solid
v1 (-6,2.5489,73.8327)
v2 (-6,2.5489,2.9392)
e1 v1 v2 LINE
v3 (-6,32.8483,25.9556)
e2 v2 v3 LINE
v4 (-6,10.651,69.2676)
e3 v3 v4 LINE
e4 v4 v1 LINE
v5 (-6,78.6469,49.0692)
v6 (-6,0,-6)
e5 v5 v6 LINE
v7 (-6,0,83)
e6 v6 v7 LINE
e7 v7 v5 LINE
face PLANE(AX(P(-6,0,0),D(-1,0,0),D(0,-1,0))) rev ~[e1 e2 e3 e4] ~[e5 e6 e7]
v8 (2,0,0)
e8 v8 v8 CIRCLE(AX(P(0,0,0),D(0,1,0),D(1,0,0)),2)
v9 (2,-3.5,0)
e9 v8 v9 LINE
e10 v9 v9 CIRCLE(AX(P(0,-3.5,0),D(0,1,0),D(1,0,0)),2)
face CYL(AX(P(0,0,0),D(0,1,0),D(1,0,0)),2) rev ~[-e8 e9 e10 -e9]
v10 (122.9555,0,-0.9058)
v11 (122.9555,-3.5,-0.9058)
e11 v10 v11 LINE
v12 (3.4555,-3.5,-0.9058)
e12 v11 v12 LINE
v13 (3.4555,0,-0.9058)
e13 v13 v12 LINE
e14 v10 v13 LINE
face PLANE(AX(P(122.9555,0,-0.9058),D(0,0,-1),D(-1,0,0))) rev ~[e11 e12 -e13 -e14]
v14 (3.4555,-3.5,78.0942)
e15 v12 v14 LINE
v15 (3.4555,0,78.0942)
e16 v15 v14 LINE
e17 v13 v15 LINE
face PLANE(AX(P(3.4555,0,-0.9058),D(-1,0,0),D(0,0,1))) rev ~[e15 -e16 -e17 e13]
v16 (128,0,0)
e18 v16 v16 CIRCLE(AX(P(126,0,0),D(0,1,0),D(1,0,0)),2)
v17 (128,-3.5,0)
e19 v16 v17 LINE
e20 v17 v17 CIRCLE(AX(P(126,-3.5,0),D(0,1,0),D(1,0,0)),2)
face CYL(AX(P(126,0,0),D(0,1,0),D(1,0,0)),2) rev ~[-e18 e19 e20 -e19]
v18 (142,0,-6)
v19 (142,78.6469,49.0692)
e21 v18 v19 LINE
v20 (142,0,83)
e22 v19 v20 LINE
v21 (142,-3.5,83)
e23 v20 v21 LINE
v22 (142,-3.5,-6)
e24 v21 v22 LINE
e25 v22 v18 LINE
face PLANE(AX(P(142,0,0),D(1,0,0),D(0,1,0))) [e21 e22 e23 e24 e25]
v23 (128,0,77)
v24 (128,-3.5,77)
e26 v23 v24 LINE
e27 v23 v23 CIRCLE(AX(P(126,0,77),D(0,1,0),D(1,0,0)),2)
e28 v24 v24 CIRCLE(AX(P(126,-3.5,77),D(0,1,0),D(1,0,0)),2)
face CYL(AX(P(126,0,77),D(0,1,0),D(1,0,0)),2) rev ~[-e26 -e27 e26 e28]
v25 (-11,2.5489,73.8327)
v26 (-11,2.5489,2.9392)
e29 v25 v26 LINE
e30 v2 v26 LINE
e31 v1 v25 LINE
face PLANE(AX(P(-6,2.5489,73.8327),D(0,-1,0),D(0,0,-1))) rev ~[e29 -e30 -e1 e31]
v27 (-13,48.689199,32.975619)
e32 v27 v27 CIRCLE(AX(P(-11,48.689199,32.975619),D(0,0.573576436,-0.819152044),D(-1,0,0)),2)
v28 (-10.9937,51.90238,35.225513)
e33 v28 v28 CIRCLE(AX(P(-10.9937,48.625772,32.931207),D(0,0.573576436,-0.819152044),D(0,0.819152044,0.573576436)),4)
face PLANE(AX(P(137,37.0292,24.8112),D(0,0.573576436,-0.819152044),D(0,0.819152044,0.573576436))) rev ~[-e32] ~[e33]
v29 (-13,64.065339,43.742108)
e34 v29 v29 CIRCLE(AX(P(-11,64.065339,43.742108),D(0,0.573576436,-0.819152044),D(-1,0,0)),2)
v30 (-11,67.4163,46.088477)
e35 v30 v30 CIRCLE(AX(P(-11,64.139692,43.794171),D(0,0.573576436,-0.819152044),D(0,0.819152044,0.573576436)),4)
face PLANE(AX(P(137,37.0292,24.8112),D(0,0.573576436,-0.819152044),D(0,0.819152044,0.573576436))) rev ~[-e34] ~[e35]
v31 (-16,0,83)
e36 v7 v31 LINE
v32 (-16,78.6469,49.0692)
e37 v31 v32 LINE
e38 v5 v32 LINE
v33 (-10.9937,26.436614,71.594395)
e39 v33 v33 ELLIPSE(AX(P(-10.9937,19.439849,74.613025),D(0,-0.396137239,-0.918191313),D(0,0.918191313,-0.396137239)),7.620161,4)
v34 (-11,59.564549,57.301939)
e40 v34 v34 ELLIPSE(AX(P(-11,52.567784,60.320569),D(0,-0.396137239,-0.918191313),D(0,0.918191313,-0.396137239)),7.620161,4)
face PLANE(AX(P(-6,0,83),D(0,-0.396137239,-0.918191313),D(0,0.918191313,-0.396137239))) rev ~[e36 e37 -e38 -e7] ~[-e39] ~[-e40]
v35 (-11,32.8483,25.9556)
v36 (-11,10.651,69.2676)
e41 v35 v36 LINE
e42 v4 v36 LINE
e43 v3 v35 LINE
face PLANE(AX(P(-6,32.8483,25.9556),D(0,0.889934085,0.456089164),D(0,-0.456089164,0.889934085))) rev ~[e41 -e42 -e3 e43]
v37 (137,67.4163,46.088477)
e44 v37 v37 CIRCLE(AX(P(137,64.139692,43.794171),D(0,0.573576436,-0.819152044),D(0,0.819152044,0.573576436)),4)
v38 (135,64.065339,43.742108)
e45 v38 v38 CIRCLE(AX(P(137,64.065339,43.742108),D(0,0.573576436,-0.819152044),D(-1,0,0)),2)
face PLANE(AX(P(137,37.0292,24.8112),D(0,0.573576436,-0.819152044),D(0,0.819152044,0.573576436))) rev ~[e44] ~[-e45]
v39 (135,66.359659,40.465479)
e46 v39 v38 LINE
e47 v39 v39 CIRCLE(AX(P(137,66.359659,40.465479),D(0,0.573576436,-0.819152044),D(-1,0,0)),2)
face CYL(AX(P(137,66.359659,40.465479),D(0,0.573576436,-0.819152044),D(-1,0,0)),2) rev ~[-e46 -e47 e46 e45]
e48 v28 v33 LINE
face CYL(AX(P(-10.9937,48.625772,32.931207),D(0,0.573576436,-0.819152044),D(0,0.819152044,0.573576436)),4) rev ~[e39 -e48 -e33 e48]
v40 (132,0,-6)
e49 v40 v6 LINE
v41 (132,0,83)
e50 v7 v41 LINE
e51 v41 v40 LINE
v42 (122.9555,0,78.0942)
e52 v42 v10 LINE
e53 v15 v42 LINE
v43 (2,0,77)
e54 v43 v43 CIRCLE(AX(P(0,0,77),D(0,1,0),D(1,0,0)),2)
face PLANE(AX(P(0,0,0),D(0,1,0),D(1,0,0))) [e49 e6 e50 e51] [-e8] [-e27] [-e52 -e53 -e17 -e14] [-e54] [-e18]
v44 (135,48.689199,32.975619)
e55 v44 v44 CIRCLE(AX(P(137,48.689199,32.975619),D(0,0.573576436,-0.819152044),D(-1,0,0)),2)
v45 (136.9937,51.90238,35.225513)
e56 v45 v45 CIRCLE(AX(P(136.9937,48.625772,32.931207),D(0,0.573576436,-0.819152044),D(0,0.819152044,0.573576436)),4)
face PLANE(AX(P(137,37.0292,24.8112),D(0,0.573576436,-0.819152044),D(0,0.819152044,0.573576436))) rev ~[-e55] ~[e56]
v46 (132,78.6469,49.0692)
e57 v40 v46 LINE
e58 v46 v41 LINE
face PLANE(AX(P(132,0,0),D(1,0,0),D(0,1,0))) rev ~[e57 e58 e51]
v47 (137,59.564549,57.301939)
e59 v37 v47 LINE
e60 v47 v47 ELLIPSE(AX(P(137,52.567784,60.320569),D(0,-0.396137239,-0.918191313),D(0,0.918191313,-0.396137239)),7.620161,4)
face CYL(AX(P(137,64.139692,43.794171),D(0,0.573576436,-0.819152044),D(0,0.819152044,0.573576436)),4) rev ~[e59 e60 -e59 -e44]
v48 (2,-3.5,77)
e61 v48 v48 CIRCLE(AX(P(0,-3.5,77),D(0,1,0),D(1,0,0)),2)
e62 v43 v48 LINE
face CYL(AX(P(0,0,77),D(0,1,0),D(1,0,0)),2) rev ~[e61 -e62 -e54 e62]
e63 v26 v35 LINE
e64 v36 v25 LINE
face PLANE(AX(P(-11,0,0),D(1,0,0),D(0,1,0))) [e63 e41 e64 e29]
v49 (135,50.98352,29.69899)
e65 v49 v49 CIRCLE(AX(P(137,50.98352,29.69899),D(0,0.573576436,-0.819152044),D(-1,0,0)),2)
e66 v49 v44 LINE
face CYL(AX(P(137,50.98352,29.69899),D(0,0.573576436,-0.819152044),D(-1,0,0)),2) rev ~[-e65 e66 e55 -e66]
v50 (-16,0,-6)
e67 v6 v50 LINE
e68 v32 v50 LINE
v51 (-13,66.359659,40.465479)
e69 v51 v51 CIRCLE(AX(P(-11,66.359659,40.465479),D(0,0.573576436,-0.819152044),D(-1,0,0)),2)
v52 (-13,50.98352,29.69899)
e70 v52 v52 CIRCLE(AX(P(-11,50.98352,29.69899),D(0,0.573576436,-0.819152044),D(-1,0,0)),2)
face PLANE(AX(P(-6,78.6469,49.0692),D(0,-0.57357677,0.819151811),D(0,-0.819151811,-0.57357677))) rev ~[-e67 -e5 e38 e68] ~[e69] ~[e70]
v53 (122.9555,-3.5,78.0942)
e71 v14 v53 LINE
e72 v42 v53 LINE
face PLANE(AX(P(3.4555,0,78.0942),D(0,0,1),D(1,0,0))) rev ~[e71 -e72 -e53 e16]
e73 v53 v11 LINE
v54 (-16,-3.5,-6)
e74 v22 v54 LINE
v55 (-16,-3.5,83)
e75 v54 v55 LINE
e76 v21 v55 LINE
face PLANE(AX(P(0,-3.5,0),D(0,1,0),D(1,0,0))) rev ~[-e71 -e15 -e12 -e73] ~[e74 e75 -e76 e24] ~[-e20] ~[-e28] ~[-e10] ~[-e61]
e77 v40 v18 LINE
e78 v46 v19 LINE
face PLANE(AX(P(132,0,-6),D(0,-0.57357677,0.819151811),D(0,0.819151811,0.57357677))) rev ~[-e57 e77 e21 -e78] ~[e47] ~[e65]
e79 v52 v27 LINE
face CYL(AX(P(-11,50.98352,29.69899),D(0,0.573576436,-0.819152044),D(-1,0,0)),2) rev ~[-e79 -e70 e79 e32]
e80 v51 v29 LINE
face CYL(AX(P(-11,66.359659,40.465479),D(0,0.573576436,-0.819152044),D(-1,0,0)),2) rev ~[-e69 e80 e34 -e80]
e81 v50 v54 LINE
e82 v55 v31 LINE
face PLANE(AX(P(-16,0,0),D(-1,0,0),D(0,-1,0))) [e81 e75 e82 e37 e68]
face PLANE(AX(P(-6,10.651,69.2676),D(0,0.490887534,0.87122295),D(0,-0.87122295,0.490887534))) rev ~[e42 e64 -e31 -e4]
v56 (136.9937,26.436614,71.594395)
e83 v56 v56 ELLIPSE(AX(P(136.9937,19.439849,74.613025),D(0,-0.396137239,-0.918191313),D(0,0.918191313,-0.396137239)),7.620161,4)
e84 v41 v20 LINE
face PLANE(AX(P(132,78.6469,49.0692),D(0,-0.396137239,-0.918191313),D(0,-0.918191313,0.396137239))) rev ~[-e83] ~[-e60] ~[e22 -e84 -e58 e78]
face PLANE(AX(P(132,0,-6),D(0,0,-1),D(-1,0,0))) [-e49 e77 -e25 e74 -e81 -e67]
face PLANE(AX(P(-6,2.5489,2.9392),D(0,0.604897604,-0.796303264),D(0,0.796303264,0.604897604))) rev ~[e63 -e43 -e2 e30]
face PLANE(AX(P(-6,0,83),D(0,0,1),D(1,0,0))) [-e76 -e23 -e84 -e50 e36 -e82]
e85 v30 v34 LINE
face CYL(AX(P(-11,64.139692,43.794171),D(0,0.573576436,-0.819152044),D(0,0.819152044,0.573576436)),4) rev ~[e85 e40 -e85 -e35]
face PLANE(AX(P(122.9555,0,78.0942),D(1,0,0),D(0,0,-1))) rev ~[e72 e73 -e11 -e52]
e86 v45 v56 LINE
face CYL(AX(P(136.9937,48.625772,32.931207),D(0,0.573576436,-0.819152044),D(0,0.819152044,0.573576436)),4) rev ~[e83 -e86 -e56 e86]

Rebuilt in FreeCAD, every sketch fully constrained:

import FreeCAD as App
import Part
import Sketcher
from FreeCAD import Vector
Q = App.Units.Quantity


def add_polygon(sketch, points):
    """Adds a closed chain of lines whose ends are joined by coincident constraints."""
    first, n = sketch.GeometryCount, len(points)
    for a, b in zip(points, points[1:] + points[:1]):
        sketch.addGeometry(Part.LineSegment(App.Vector(*a, 0), App.Vector(*b, 0)), False)
    for i in range(n):
        sketch.addConstraint(Sketcher.Constraint("Coincident", first + i, 2, first + (i + 1) % n, 1))

doc = App.newDocument("Part")
body = doc.addObject("PartDesign::Body", "Body")

# Sketch on XZ plane
sketch1 = body.newObject("Sketcher::SketchObject", "Sketch")
sketch1.AttachmentSupport = (doc.getObject("XZ_Plane"), [""])
sketch1.MapMode = "FlatFace"
add_polygon(sketch1, [(-6, -6), (-6, 83), (132, 83), (132, -6)])  # lines 0-3
sketch1.addGeometry(Part.Circle(Vector(0, 77, 0), Vector(0, 0, 1), 2), False)  # 4
sketch1.addGeometry(Part.Circle(Vector(126, 77, 0), Vector(0, 0, 1), 2), False)  # 5
add_polygon(sketch1, [(122.9555, 78.0942), (3.4555, 78.0942), (3.4555, -0.9058), (122.9555, -0.9058)])  # lines 6-9
sketch1.addGeometry(Part.Circle(Vector(0, 0, 0), Vector(0, 0, 1), 2), False)  # 10
sketch1.addGeometry(Part.Circle(Vector(126, 0, 0), Vector(0, 0, 1), 2), False)  # 11
sketch1.addConstraint([
    Sketcher.Constraint("Vertical", 0),
    Sketcher.Constraint("Horizontal", 1),
    Sketcher.Constraint("Vertical", 2),
    Sketcher.Constraint("Horizontal", 3),
    Sketcher.Constraint("Horizontal", 6),
    Sketcher.Constraint("Vertical", 7),
    Sketcher.Constraint("Horizontal", 8),
    Sketcher.Constraint("Vertical", 9),
    Sketcher.Constraint("Coincident", 10, 3, -1, 1),
    Sketcher.Constraint("Equal", 4, 5),
    Sketcher.Constraint("Equal", 5, 10),
    Sketcher.Constraint("Equal", 10, 11),
    Sketcher.Constraint("PointOnObject", 4, 3, -2),
    Sketcher.Constraint("PointOnObject", 11, 3, -1),
    Sketcher.Constraint("Horizontal", 4, 3, 5, 3),
    Sketcher.Constraint("Vertical", 5, 3, 11, 3),
    Sketcher.Constraint("Diameter", 4, 4.0),
    Sketcher.Constraint("DistanceX", 1, 1, 1, 2, 138.0),
    Sketcher.Constraint("DistanceY", 0, 1, 0, 2, 89.0),
    Sketcher.Constraint("DistanceX", 0, 2, -1, 1, 6.0),
    Sketcher.Constraint("DistanceY", 2, 2, -1, 1, 6.0),
    Sketcher.Constraint("DistanceY", 4, 3, 0, 2, 6.0),
    Sketcher.Constraint("DistanceX", 5, 3, 1, 2, 6.0),
    Sketcher.Constraint("DistanceY", 7, 2, 7, 1, 79.0),
    Sketcher.Constraint("DistanceX", 6, 2, 6, 1, 119.5),
    Sketcher.Constraint("DistanceX", -1, 1, 6, 2, 3.4555),
    Sketcher.Constraint("DistanceY", -1, 1, 6, 2, 78.0942),
])
pad1 = body.newObject("PartDesign::Pad", "Pad")
pad1.Profile = sketch1
pad1.Length = 3.5

# Sketch on YZ plane
sketch2 = body.newObject("Sketcher::SketchObject", "Sketch001")
sketch2.AttachmentSupport = (doc.getObject("YZ_Plane"), [""])
sketch2.MapMode = "FlatFace"
sketch2.AttachmentOffset = App.Placement(Vector(0, 0, 132), App.Rotation())
add_polygon(sketch2, [(-3.5, -6), (0, -6), (78.6469, 49.0692), (0, 83), (-3.5, 83)])  # lines 0-4
sketch2.addConstraint([
    Sketcher.Constraint("Horizontal", 0),
    Sketcher.Constraint("Horizontal", 3),
    Sketcher.Constraint("Vertical", 4),
    Sketcher.Constraint("PointOnObject", 0, 2, -2),
    Sketcher.Constraint("PointOnObject", 2, 2, -2),
    Sketcher.Constraint("Angle", 1, Q("35 deg")),
    Sketcher.Constraint("DistanceY", 4, 2, 4, 1, 89.0),
    Sketcher.Constraint("DistanceX", 0, 1, 0, 2, 3.5),
    Sketcher.Constraint("DistanceY", 0, 2, -1, 1, 6.0),
    Sketcher.Constraint("DistanceX", -1, 1, 1, 2, 78.647),
])
pad2 = body.newObject("PartDesign::Pad", "Pad001")
pad2.Profile = sketch2
pad2.Length = 10

# Sketch on YZ plane
sketch3 = body.newObject("Sketcher::SketchObject", "Sketch002")
sketch3.AttachmentSupport = (doc.getObject("YZ_Plane"), [""])
sketch3.MapMode = "FlatFace"
sketch3.AttachmentOffset = App.Placement(Vector(0, 0, -6), App.Rotation())
add_polygon(sketch3, [(-3.5, 83), (0, 83), (78.6469, 49.0692), (0, -6), (-3.5, -6)])  # lines 0-4
sketch3.addConstraint([
    Sketcher.Constraint("Horizontal", 0),
    Sketcher.Constraint("Horizontal", 3),
    Sketcher.Constraint("Vertical", 4),
    Sketcher.Constraint("PointOnObject", 0, 2, -2),
    Sketcher.Constraint("PointOnObject", 2, 2, -2),
    Sketcher.Constraint("DistanceY", 4, 1, 4, 2, 89.0),
    Sketcher.Constraint("Angle", 2, Q("-145 deg")),
    Sketcher.Constraint("DistanceX", 0, 1, 0, 2, 3.5),
    Sketcher.Constraint("DistanceY", -1, 1, 0, 2, 83.0),
    Sketcher.Constraint("DistanceX", -1, 1, 1, 2, 78.647),
])
pad3 = body.newObject("PartDesign::Pad", "Pad002")
pad3.Profile = sketch3
pad3.Length = 10
pad3.Reversed = True

# Sketch on an angled plane
sketch4 = body.newObject("Sketcher::SketchObject", "Sketch003")
sketch4.Placement = App.Placement(Vector(0, 2.8191, -4.0261), App.Rotation(Vector(-1, 0, 0), Vector(0, 0.819152044, 0.573576436), Vector(0, 0.573576436, -0.819152044), "ZXY"))
sketch4.addGeometry([
    Part.Circle(Vector(-137, 77.5687, 0), Vector(0, 0, 1), 2),
    Part.Circle(Vector(-137, 58.7979, 0), Vector(0, 0, 1), 2),
    Part.Circle(Vector(11, 77.5687, 0), Vector(0, 0, 1), 2),
    Part.Circle(Vector(11, 58.7979, 0), Vector(0, 0, 1), 2),
], False)
sketch4.addConstraint([
    Sketcher.Constraint("Equal", 0, 1),
    Sketcher.Constraint("Equal", 1, 2),
    Sketcher.Constraint("Equal", 2, 3),
    Sketcher.Constraint("Horizontal", 0, 3, 2, 3),
    Sketcher.Constraint("Horizontal", 1, 3, 3, 3),
    Sketcher.Constraint("Vertical", 0, 3, 1, 3),
    Sketcher.Constraint("Vertical", 2, 3, 3, 3),
    Sketcher.Constraint("Diameter", 0, 4.0),
    Sketcher.Constraint("DistanceX", 0, 3, -1, 1, 137.0),
    Sketcher.Constraint("DistanceX", -1, 1, 2, 3, 11.0),
    Sketcher.Constraint("DistanceY", -1, 1, 1, 3, 58.798),
    Sketcher.Constraint("DistanceY", -1, 1, 0, 3, 77.5687),
])
pocket1 = body.newObject("PartDesign::Pocket", "Pocket")
pocket1.Profile = sketch4
pocket1.Length = 64

# Sketch on an angled plane
sketch5 = body.newObject("Sketcher::SketchObject", "Sketch004")
sketch5.Placement = App.Placement(Vector(137, 37.0292, 24.8112), App.Rotation(Vector(0, 0.819152044, 0.573576436), Vector(0.999999999, 0, 0), Vector(0, 0.573576436, -0.819152044), "ZXY"))
sketch5.addGeometry([
    Part.Circle(Vector(33.0958, 0, 0), Vector(0, 0, 1), 4),
    Part.Circle(Vector(14.1568, -0.0063, 0), Vector(0, 0, 1), 4),
    Part.Circle(Vector(33.0958, -148, 0), Vector(0, 0, 1), 4),
    Part.Circle(Vector(14.1568, -147.9937, 0), Vector(0, 0, 1), 4),
], False)
sketch5.addConstraint([
    Sketcher.Constraint("Equal", 0, 1),
    Sketcher.Constraint("Equal", 1, 2),
    Sketcher.Constraint("Equal", 2, 3),
    Sketcher.Constraint("PointOnObject", 0, 3, -1),
    Sketcher.Constraint("Vertical", 0, 3, 2, 3),
    Sketcher.Constraint("Vertical", 1, 3, 3, 3),
    Sketcher.Constraint("Diameter", 0, 8.0),
    Sketcher.Constraint("DistanceY", 2, 3, -1, 1, 148.0),
    Sketcher.Constraint("DistanceX", 1, 3, 0, 3, 18.939),
    Sketcher.Constraint("DistanceX", -1, 1, 0, 3, 33.0958),
    Sketcher.Constraint("DistanceY", 1, 3, -1, 1, 0.0063),
    Sketcher.Constraint("DistanceY", 3, 3, -1, 1, 147.9937),
])
pocket2 = body.newObject("PartDesign::Pocket", "Pocket001")
pocket2.Profile = sketch5
pocket2.Length = 65

# Sketch on YZ plane
sketch6 = body.newObject("Sketcher::SketchObject", "Sketch005")
sketch6.AttachmentSupport = (doc.getObject("YZ_Plane"), [""])
sketch6.MapMode = "FlatFace"
sketch6.AttachmentOffset = App.Placement(Vector(0, 0, -6), App.Rotation())
add_polygon(sketch6, [(10.651, 69.2676), (2.5489, 73.8327), (2.5489, 2.9392), (32.8483, 25.9556)])  # lines 0-3
sketch6.addConstraint([
    Sketcher.Constraint("Vertical", 1),
    Sketcher.Constraint("Angle", 0, Q("150.601 deg")),
    Sketcher.Constraint("Distance", 2, 38.05),
    Sketcher.Constraint("DistanceY", 1, 2, 1, 1, 70.8935),
    Sketcher.Constraint("DistanceX", -1, 1, 0, 2, 2.549),
    Sketcher.Constraint("DistanceX", -1, 1, 3, 2, 10.651),
    Sketcher.Constraint("DistanceY", 2, 2, 0, 2, 47.877),
    Sketcher.Constraint("DistanceY", -1, 1, 0, 2, 73.8327),
])
pocket3 = body.newObject("PartDesign::Pocket", "Pocket002")
pocket3.Profile = sketch6
pocket3.Length = 5

doc.recompute()
